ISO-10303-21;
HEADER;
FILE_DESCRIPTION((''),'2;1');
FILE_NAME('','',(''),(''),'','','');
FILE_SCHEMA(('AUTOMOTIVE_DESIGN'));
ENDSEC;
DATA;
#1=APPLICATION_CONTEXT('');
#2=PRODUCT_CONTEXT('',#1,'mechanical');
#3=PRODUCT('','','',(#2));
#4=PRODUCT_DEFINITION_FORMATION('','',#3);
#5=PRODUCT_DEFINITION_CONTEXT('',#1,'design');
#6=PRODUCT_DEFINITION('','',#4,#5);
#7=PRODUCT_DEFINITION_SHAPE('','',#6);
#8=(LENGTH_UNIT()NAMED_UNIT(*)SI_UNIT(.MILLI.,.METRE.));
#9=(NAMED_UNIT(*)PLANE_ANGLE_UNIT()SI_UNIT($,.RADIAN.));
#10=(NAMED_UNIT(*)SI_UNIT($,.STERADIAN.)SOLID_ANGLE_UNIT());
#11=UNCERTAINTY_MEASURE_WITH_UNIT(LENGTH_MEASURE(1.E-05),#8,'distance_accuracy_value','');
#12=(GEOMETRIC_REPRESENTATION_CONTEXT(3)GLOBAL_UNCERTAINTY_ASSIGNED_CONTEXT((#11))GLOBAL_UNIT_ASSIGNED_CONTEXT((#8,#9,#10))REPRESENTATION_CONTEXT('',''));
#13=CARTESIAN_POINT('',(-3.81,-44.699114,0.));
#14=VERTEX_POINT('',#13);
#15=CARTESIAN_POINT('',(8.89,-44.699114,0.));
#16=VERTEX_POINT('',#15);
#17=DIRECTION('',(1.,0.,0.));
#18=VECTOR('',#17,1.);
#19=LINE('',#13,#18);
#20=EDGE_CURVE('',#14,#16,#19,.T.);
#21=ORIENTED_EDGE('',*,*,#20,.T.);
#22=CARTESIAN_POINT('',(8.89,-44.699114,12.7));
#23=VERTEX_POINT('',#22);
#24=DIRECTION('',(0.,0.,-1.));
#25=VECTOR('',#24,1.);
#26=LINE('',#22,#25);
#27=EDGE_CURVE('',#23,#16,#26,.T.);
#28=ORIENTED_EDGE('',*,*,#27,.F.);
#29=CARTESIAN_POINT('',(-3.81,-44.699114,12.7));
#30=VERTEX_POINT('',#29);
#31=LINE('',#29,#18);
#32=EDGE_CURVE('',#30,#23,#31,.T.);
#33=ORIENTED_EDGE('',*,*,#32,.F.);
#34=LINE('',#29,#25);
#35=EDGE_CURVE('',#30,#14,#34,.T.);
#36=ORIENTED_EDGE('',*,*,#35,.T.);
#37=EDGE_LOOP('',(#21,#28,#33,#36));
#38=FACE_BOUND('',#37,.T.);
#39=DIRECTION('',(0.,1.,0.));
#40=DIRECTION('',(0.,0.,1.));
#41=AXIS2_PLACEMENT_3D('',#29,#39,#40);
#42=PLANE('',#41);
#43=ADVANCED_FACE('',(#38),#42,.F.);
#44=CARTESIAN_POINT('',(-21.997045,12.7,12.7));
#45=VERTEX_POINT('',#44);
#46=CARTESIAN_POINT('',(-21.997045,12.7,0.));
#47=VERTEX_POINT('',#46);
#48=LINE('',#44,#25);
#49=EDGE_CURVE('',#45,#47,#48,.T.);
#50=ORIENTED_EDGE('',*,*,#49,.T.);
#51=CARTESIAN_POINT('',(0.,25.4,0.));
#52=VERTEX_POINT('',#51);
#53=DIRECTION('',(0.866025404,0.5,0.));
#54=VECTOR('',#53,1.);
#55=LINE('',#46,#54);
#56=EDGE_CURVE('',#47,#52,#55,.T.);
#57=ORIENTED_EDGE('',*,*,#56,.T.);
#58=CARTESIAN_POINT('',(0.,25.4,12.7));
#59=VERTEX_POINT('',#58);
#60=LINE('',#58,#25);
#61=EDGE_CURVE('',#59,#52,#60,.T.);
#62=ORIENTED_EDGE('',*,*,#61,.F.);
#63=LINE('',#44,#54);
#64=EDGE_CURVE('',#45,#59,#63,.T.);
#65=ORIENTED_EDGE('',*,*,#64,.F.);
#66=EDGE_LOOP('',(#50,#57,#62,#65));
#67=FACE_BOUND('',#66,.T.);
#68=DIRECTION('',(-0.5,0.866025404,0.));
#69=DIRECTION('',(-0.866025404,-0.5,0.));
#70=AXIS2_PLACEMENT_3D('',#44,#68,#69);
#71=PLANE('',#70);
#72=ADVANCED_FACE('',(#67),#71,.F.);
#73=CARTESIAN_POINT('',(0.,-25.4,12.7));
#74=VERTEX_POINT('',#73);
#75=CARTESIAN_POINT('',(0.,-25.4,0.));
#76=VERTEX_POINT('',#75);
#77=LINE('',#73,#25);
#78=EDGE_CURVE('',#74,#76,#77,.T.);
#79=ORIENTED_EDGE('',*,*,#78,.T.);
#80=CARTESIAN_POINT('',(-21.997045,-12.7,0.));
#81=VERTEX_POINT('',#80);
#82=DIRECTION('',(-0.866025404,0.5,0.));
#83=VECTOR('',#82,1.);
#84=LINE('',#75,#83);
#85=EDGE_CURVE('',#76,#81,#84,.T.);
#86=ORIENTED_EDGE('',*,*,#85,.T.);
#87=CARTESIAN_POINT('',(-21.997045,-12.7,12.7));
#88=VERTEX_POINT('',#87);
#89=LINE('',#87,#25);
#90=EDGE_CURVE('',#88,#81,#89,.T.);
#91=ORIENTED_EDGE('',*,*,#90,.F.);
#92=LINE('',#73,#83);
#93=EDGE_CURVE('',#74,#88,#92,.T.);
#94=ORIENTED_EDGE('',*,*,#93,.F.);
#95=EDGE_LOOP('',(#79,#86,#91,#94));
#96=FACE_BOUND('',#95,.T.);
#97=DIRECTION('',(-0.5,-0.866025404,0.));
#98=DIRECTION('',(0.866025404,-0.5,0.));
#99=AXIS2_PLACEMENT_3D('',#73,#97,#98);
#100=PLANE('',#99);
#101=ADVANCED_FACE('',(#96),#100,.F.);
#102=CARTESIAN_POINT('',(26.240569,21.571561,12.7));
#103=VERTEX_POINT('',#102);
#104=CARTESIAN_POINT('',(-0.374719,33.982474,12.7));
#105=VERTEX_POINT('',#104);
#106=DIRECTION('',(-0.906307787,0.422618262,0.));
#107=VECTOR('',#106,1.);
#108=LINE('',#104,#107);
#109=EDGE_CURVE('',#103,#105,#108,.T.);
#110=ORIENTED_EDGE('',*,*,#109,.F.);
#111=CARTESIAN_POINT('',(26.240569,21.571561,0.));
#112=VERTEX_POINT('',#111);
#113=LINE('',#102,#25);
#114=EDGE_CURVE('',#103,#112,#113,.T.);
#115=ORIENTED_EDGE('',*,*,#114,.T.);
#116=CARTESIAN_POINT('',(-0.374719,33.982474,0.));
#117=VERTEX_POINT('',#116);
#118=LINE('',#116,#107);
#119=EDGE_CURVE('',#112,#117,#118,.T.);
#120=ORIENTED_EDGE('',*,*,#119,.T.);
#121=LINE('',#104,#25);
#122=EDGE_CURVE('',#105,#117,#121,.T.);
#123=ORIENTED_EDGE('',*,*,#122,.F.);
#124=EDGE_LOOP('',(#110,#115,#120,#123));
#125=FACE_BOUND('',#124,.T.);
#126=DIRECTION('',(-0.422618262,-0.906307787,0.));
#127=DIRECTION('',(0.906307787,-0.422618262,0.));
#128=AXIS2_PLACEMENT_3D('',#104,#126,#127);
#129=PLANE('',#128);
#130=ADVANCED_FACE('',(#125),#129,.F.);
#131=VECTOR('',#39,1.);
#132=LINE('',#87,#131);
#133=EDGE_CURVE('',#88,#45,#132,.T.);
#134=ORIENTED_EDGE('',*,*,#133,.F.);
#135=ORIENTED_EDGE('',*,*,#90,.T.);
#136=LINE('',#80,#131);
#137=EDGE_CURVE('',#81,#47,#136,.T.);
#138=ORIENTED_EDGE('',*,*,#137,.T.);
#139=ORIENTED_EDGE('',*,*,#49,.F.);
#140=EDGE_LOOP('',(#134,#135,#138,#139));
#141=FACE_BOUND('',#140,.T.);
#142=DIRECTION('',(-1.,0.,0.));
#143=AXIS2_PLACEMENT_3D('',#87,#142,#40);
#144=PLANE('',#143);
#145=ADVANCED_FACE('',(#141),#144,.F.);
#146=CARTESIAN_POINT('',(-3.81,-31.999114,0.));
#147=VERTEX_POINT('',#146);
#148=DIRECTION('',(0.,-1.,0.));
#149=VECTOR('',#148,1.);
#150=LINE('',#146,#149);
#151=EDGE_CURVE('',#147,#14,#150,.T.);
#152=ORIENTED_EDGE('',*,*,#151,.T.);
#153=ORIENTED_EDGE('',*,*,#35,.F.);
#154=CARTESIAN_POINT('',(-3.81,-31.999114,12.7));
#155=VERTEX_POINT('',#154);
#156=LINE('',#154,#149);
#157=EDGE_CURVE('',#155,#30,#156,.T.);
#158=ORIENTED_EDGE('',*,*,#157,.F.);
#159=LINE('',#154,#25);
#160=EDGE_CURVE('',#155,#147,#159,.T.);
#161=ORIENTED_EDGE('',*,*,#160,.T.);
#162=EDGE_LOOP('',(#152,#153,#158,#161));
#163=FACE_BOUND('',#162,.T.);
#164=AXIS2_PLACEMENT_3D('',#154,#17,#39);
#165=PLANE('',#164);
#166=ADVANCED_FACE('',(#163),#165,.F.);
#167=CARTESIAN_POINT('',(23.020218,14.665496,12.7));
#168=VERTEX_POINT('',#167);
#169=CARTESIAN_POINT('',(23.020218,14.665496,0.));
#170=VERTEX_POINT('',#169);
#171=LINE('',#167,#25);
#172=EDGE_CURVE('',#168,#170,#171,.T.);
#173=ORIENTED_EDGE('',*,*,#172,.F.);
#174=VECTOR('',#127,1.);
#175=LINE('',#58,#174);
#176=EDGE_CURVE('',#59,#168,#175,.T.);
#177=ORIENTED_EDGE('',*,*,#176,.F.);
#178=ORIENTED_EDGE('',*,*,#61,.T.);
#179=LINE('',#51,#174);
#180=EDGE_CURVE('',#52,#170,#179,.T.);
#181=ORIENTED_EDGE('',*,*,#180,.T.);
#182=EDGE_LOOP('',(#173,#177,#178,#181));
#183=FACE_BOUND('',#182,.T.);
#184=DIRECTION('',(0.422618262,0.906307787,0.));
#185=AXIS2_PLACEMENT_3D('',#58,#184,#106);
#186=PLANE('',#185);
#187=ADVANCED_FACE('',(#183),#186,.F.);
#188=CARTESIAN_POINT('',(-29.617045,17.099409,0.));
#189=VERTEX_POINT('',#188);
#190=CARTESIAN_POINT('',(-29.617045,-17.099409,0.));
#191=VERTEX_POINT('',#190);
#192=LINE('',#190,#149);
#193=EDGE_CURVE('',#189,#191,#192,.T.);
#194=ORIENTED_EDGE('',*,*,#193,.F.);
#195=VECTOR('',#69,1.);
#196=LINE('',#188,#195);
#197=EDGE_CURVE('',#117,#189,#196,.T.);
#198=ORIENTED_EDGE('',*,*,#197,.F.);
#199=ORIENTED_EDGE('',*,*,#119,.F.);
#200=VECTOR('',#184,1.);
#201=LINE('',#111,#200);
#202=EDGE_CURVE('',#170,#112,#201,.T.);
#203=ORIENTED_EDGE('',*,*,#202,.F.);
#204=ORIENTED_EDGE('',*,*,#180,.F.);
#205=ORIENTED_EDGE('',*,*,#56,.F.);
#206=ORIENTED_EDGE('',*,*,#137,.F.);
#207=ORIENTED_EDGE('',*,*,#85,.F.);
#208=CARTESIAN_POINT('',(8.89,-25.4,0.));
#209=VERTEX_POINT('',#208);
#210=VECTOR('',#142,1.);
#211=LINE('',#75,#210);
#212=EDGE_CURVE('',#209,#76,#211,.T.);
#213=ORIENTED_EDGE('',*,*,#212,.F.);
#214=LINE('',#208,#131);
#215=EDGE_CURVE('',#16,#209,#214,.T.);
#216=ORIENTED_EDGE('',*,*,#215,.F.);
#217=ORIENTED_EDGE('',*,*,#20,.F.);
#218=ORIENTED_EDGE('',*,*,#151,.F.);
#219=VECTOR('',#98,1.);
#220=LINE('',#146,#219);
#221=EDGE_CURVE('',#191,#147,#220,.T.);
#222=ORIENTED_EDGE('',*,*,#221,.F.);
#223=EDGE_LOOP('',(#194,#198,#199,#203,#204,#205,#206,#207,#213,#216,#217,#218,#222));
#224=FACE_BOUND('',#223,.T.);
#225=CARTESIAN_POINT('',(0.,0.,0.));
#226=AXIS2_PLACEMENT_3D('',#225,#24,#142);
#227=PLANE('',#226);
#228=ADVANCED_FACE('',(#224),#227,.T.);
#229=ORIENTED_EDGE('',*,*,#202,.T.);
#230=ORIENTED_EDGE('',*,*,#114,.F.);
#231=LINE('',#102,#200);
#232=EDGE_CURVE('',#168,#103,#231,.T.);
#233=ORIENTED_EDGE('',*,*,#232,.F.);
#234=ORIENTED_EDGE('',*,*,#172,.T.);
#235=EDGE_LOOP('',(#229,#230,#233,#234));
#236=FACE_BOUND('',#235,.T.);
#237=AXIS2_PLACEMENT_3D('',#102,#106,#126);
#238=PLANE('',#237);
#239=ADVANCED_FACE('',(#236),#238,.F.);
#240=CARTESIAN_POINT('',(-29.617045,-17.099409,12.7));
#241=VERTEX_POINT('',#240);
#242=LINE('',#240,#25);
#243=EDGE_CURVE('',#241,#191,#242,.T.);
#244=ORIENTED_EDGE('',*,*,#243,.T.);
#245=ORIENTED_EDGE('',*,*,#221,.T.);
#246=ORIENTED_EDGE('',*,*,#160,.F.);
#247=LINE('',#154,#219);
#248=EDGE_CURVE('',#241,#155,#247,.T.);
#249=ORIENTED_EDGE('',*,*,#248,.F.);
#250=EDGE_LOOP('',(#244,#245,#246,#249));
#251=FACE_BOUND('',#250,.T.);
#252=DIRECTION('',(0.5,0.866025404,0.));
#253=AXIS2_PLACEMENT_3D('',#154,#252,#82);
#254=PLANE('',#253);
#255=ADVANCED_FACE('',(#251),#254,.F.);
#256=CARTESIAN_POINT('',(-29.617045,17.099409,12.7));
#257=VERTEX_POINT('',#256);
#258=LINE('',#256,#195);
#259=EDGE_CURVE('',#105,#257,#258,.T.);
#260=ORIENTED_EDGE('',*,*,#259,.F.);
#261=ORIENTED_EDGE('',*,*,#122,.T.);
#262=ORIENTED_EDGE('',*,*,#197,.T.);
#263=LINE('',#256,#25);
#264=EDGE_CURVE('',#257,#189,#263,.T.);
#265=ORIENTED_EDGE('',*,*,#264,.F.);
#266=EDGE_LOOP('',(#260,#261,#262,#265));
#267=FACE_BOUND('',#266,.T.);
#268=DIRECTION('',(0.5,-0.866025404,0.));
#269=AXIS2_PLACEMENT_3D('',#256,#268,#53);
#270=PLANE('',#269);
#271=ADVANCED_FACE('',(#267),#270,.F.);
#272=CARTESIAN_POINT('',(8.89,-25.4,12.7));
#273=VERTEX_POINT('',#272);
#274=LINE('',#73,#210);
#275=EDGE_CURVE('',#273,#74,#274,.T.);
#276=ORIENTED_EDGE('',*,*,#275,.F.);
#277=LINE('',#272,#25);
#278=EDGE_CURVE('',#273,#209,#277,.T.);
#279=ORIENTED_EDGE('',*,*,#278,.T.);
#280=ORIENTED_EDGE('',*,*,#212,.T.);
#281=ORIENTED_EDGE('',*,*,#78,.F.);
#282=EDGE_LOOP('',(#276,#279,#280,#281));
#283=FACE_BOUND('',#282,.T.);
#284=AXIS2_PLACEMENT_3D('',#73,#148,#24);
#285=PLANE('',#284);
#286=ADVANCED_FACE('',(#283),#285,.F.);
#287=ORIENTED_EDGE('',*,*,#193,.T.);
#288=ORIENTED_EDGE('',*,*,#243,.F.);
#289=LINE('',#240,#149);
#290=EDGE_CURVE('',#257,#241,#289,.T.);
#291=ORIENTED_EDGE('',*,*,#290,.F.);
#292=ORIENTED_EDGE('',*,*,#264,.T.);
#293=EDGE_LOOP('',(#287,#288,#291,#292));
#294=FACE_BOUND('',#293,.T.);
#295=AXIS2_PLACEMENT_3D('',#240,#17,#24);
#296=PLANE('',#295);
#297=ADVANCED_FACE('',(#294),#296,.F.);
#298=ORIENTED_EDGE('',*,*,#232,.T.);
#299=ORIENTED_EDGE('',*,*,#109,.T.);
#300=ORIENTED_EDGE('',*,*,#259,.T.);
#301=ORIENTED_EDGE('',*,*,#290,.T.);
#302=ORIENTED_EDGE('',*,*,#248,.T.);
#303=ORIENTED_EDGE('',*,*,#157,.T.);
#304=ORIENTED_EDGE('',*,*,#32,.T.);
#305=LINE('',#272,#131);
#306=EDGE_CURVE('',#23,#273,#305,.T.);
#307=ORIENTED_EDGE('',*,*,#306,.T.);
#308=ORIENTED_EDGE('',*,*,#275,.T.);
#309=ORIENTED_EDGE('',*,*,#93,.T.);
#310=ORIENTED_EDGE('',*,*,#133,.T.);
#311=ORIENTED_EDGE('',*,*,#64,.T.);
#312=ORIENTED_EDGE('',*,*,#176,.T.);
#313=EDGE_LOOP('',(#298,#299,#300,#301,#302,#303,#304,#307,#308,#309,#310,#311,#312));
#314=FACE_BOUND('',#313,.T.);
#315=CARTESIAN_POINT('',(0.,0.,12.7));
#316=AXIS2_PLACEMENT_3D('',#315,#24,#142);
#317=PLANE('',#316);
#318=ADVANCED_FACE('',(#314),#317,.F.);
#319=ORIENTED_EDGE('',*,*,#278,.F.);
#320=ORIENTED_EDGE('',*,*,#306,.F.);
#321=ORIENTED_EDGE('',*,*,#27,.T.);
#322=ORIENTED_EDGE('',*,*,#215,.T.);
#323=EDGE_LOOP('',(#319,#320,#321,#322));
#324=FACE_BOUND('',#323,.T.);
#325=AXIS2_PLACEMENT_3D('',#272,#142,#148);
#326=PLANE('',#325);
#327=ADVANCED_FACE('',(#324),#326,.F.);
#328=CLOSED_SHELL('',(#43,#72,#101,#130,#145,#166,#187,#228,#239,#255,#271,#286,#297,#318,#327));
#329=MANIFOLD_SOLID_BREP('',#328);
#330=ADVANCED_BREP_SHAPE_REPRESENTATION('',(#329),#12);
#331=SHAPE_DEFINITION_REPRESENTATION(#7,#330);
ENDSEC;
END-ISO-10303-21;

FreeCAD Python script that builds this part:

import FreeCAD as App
import Part
import Sketcher
from FreeCAD import Vector
Q = App.Units.Quantity

doc = App.newDocument("Part")
body = doc.addObject("PartDesign::Body", "Body")

sketch1 = body.newObject("Sketcher::SketchObject", "Sketch")
sketch1.AttachmentSupport = (doc.getObject("XY_Plane"), [""])
sketch1.MapMode = "FlatFace"
sketch1.addGeometry([
    Part.LineSegment(Vector(0, -25, 0), Vector(-22, -13, 0)),
    Part.LineSegment(Vector(-22, -13, 0), Vector(-22, 13, 0)),
    Part.LineSegment(Vector(-22, 13, 0), Vector(0, 25, 0)),
    Part.LineSegment(Vector(0, 25, 0), Vector(23, 15, 0)),
    Part.LineSegment(Vector(23, 15, 0), Vector(26, 22, 0)),
    Part.LineSegment(Vector(26, 22, 0), Vector(0, 34, 0)),
    Part.LineSegment(Vector(0, 34, 0), Vector(-30, 17, 0)),
    Part.LineSegment(Vector(-30, 17, 0), Vector(-30, -17, 0)),
    Part.LineSegment(Vector(-30, -17, 0), Vector(-4, -32, 0)),
    Part.LineSegment(Vector(-4, -32, 0), Vector(-4, -45, 0)),
    Part.LineSegment(Vector(-4, -45, 0), Vector(9, -45, 0)),
    Part.LineSegment(Vector(9, -45, 0), Vector(9, -25, 0)),
    Part.LineSegment(Vector(9, -25, 0), Vector(0, -25, 0)),
], False)
sketch1.addConstraint([
    Sketcher.Constraint("Coincident", 0, 2, 1, 1),
    Sketcher.Constraint("Coincident", 1, 2, 2, 1),
    Sketcher.Constraint("Coincident", 2, 2, 3, 1),
    Sketcher.Constraint("Coincident", 3, 2, 4, 1),
    Sketcher.Constraint("Coincident", 4, 2, 5, 1),
    Sketcher.Constraint("Coincident", 5, 2, 6, 1),
    Sketcher.Constraint("Coincident", 6, 2, 7, 1),
    Sketcher.Constraint("Coincident", 7, 2, 8, 1),
    Sketcher.Constraint("Coincident", 8, 2, 9, 1),
    Sketcher.Constraint("Coincident", 9, 2, 10, 1),
    Sketcher.Constraint("Coincident", 10, 2, 11, 1),
    Sketcher.Constraint("Coincident", 11, 2, 12, 1),
    Sketcher.Constraint("Coincident", 12, 2, 0, 1),
    Sketcher.Constraint("Vertical", 1),
    Sketcher.Constraint("Vertical", 7),
    Sketcher.Constraint("Vertical", 9),
    Sketcher.Constraint("Horizontal", 10),
    Sketcher.Constraint("Vertical", 11),
    Sketcher.Constraint("Horizontal", 12),
    Sketcher.Constraint("Symmetric", 2, 2, 12, 2, -1, 1),
    Sketcher.Constraint("PointOnObject", 2, 2, -2),
    Sketcher.Constraint("Perpendicular", 3, 4),
    Sketcher.Constraint("Perpendicular", 4, 5),
    Sketcher.Constraint("Parallel", 2, 6),
    Sketcher.Constraint("Parallel", 0, 8),
    Sketcher.Constraint("Equal", 10, 9),
    Sketcher.Constraint("Equal", 0, 2),
    Sketcher.Constraint("Equal", 2, 3),
    Sketcher.Constraint("DistanceY", 1, 1, 1, 2, Q("1 in")),
    Sketcher.Constraint("Distance", 0, Q("1 in")),
    Sketcher.Constraint("DistanceX", 10, 1, 10, 2, Q("0.5 in")),
    Sketcher.Constraint("DistanceY", -1, 1, 2, 2, Q("1 in")),
    Sketcher.Constraint("Angle", 3, Q("-25 deg")),
    Sketcher.Constraint("Distance", 4, Q("0.3 in")),
    Sketcher.Constraint("DistanceX", 12, 2, 12, 1, Q("0.35 in")),
    Sketcher.Constraint("DistanceX", 6, 2, 1, 2, Q("0.3 in")),
    Sketcher.Constraint("DistanceY", 7, 2, 7, 1, 34.198818),
    Sketcher.Constraint("Distance", 5, 29.366721),
])
pad1 = body.newObject("PartDesign::Pad", "Pad")
pad1.Profile = sketch1
pad1.Length = Q("0.5 in")

doc.recompute()
